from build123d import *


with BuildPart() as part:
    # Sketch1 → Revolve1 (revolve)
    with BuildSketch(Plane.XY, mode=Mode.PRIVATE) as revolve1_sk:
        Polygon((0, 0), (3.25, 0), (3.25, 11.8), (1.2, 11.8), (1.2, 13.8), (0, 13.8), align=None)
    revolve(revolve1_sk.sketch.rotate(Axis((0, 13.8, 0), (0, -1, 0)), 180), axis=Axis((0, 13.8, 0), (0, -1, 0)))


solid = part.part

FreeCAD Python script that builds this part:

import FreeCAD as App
import Part
import Sketcher
from FreeCAD import Vector
Q = App.Units.Quantity

doc = App.newDocument("Part")
body = doc.addObject("PartDesign::Body", "Body")

sketch1 = body.newObject("Sketcher::SketchObject", "Sketch")
sketch1.AttachmentSupport = (doc.getObject("XY_Plane"), [""])
sketch1.MapMode = "FlatFace"
sketch1.addGeometry([
    Part.LineSegment(Vector(0, 0, 0), Vector(3.25, 0, 0)),
    Part.LineSegment(Vector(3.25, 0, 0), Vector(3.25, 11.8, 0)),
    Part.LineSegment(Vector(3.25, 11.8, 0), Vector(1.2, 11.8, 0)),
    Part.LineSegment(Vector(1.2, 11.8, 0), Vector(1.2, 13.8, 0)),
    Part.LineSegment(Vector(1.2, 13.8, 0), Vector(0, 13.8, 0)),
    Part.LineSegment(Vector(0, 13.8, 0), Vector(0, 0, 0)),
], False)
sketch1.addConstraint([
    Sketcher.Constraint("Coincident", 0, 2, 1, 1),
    Sketcher.Constraint("Coincident", 1, 2, 2, 1),
    Sketcher.Constraint("Coincident", 2, 2, 3, 1),
    Sketcher.Constraint("Coincident", 3, 2, 4, 1),
    Sketcher.Constraint("Coincident", 4, 2, 5, 1),
    Sketcher.Constraint("Coincident", 5, 2, 0, 1),
    Sketcher.Constraint("Horizontal", 0),
    Sketcher.Constraint("Vertical", 1),
    Sketcher.Constraint("Horizontal", 2),
    Sketcher.Constraint("Vertical", 3),
    Sketcher.Constraint("Horizontal", 4),
    Sketcher.Constraint("Vertical", 5),
    Sketcher.Constraint("Coincident", 5, 2, -1, 1),
    Sketcher.Constraint("DistanceY", 3, 1, 3, 2, Q("2 mm")),
    Sketcher.Constraint("DistanceX", 4, 2, 4, 1, Q("1.2 mm")),
    Sketcher.Constraint("DistanceY", 1, 1, 1, 2, Q("11.8 mm")),
    Sketcher.Constraint("DistanceX", 0, 1, 0, 2, Q("3.25 mm")),
])
revolution = body.newObject("PartDesign::Revolution", "Revolution")
revolution.Profile = sketch1
revolution.ReferenceAxis = (sketch1, ["V_Axis"])
revolution.Angle = 360

doc.recompute()
